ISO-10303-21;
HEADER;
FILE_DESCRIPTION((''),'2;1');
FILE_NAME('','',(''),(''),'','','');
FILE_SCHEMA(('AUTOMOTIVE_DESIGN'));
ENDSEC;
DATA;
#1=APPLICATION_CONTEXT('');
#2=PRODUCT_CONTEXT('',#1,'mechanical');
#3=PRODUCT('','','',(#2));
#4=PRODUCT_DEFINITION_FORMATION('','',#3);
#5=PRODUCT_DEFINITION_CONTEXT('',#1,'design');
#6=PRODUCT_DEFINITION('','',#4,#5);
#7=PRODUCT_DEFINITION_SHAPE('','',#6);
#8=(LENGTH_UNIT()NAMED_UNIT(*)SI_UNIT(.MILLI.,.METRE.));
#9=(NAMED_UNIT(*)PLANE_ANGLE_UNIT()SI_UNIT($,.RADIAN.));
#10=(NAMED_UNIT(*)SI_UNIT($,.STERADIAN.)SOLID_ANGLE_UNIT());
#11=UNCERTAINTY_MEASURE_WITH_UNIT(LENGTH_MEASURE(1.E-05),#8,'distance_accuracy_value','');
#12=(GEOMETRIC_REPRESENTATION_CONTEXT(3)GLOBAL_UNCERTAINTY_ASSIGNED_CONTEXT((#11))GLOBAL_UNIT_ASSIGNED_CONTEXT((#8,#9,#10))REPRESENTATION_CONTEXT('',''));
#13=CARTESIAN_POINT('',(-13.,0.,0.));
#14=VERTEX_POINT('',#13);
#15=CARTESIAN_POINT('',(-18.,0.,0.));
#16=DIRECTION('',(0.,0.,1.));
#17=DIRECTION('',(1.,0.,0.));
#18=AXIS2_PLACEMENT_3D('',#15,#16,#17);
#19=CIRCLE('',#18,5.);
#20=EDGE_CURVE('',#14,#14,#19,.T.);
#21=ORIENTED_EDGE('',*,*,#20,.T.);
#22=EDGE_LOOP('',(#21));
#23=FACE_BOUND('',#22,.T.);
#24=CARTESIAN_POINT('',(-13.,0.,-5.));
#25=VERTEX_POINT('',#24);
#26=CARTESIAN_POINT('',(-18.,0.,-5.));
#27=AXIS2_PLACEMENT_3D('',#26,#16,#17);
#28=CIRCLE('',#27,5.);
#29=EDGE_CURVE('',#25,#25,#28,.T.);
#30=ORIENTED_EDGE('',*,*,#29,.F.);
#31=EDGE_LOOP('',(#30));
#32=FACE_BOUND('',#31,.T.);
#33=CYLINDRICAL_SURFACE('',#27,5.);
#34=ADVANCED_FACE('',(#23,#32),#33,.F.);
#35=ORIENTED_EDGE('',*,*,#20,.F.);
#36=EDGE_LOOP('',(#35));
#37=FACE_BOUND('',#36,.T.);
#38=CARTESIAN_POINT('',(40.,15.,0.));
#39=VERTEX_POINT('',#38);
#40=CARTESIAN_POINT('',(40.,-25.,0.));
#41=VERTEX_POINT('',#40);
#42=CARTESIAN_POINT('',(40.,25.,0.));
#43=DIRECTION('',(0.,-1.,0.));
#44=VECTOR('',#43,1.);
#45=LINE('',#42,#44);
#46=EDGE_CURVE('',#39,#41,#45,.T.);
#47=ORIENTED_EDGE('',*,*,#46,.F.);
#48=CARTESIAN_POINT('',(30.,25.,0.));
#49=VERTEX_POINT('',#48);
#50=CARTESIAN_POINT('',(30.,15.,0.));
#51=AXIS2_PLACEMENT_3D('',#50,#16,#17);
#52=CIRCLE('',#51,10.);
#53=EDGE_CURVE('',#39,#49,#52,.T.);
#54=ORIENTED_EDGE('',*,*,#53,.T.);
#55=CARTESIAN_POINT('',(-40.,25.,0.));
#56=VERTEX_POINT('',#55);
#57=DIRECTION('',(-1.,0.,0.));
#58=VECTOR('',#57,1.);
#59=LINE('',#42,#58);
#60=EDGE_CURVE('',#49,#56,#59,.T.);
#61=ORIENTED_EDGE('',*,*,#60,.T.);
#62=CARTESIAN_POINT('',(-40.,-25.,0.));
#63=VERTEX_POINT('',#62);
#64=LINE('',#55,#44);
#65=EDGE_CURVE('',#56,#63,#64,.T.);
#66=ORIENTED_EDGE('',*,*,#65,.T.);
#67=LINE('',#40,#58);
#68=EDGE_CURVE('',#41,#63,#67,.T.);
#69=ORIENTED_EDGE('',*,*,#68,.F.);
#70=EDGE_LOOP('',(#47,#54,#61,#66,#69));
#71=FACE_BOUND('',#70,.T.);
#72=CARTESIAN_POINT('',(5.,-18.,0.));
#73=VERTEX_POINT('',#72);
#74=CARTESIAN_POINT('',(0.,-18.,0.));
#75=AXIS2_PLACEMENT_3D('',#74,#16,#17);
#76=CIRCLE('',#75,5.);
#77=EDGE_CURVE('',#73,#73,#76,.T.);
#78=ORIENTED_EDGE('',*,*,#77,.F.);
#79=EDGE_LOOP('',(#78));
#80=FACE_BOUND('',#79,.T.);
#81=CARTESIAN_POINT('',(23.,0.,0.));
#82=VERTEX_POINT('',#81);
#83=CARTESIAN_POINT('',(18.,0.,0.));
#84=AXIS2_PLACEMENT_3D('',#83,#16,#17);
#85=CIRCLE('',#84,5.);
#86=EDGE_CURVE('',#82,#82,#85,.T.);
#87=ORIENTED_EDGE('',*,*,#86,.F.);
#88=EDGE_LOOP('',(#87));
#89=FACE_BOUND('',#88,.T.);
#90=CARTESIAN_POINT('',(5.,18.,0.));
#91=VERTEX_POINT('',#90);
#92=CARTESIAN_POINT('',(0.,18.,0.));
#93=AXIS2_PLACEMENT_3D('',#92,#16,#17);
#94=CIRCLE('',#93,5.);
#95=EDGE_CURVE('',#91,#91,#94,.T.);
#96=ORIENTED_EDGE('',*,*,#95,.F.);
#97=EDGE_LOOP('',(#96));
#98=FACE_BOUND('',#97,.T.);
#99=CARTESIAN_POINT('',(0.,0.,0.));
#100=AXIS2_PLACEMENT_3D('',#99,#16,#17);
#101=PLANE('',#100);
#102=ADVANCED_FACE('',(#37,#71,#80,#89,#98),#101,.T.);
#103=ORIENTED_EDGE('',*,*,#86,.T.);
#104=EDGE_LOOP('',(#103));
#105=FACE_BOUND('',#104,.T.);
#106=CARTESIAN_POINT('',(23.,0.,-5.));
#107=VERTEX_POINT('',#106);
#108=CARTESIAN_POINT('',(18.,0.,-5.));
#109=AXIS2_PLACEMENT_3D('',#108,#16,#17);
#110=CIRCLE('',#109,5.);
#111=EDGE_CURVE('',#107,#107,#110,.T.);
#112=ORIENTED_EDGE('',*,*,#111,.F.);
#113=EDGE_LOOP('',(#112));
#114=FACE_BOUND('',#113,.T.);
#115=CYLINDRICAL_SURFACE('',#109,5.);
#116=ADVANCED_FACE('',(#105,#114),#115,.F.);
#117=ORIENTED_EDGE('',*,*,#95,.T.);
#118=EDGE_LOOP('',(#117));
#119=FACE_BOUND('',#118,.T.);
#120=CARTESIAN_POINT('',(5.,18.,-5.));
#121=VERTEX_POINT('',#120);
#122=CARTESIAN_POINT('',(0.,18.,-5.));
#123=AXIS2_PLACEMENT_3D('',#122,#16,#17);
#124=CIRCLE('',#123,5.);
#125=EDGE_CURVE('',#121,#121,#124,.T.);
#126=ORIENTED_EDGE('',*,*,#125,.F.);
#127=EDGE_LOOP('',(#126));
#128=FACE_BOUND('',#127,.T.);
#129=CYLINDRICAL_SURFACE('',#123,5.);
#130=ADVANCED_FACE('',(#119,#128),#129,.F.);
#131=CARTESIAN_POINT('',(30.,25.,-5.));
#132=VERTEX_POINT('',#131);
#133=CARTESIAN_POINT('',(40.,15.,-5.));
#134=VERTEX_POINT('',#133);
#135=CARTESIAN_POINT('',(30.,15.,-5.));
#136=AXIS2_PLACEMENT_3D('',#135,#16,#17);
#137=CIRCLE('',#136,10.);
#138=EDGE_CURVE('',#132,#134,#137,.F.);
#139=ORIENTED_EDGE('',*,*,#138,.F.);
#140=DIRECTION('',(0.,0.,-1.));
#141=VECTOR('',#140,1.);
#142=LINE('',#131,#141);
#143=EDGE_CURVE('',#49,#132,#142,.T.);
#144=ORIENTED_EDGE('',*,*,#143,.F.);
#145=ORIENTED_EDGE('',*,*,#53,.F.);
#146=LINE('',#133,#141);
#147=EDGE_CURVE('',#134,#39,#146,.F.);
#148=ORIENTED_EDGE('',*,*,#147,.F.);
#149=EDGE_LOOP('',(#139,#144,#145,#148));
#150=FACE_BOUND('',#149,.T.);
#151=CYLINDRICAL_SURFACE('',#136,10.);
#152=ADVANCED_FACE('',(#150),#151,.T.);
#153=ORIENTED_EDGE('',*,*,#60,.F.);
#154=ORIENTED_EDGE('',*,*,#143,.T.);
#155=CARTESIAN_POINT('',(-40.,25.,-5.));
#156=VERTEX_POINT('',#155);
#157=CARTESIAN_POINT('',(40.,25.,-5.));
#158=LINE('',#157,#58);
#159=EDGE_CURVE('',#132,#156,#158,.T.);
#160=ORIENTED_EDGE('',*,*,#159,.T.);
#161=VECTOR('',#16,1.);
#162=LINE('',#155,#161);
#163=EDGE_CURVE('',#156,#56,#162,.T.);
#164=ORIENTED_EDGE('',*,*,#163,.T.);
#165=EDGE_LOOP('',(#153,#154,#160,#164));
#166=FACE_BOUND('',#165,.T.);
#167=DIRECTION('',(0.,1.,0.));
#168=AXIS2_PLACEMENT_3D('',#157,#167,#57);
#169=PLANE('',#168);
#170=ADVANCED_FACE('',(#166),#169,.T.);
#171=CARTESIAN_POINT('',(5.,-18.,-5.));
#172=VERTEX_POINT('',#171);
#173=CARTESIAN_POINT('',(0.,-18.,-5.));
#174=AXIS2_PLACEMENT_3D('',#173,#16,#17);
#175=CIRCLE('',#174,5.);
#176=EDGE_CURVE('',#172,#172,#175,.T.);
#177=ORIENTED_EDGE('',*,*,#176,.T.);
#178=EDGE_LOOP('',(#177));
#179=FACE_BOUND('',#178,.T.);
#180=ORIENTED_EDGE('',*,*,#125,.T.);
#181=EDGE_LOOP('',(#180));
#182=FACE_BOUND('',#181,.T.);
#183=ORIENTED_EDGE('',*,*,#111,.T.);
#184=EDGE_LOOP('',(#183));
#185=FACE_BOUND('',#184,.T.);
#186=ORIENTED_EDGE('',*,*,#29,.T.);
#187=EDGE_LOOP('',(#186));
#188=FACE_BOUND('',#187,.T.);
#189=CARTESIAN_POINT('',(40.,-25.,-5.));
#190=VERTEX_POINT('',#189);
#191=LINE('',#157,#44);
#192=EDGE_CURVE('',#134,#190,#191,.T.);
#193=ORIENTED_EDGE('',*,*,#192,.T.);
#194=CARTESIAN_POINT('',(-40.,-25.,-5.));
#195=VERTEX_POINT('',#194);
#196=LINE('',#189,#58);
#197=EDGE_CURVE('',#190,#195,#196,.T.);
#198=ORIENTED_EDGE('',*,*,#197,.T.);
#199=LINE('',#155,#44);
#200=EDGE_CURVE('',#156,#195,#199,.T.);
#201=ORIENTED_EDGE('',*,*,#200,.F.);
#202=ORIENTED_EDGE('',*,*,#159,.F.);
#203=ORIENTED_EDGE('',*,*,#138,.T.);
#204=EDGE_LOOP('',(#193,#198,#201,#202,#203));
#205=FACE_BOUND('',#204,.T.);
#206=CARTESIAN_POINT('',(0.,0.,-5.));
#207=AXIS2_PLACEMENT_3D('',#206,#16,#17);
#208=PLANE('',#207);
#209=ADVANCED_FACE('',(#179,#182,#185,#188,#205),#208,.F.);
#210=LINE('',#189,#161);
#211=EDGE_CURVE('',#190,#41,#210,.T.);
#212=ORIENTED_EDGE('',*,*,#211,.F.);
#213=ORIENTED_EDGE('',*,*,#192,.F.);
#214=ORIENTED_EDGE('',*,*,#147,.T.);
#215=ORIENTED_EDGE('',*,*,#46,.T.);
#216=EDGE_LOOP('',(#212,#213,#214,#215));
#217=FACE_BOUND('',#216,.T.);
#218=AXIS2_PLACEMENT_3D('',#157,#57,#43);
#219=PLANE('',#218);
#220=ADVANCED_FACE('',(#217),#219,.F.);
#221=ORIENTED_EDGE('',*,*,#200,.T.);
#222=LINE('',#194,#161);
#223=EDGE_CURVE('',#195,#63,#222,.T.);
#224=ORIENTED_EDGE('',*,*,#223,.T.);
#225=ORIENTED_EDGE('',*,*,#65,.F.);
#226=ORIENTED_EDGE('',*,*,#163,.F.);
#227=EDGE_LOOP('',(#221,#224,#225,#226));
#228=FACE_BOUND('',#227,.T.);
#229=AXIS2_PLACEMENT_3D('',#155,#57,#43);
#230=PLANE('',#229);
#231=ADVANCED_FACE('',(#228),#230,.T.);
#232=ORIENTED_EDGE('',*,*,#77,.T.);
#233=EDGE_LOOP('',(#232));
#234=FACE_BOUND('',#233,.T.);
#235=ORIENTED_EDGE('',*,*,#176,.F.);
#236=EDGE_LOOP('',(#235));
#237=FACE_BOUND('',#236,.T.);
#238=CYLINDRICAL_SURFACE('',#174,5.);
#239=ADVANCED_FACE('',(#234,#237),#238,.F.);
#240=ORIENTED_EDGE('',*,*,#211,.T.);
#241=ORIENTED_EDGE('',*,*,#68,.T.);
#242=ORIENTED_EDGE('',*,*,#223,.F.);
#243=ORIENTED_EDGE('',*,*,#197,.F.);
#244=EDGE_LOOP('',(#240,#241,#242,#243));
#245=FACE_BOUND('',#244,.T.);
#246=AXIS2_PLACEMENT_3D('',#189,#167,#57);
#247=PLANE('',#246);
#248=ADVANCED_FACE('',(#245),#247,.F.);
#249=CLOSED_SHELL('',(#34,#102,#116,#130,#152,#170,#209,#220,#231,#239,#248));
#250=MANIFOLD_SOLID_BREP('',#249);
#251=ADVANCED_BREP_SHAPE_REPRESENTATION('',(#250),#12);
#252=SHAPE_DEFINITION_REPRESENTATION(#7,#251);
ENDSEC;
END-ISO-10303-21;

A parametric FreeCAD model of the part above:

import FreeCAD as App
import Part
import Sketcher
Q = App.Units.Quantity


def edges_at(feature, points):
    """Names of the edges that pass closest to the given points."""
    edges = feature.Shape.Edges
    near = lambda p: min(range(len(edges)), key=lambda i: edges[i].distToShape(Part.Vertex(*p))[0])
    return sorted({f"Edge{near(p) + 1}" for p in points})


def add_polygon(sketch, points):
    """Adds a closed chain of lines whose ends are joined by coincident constraints."""
    first, n = sketch.GeometryCount, len(points)
    for a, b in zip(points, points[1:] + points[:1]):
        sketch.addGeometry(Part.LineSegment(App.Vector(*a, 0), App.Vector(*b, 0)), False)
    for i in range(n):
        sketch.addConstraint(Sketcher.Constraint("Coincident", first + i, 2, first + (i + 1) % n, 1))

doc = App.newDocument("Part")
body = doc.addObject("PartDesign::Body", "Body")

# Sketch on XY plane
sketch1 = body.newObject("Sketcher::SketchObject", "Sketch")
sketch1.AttachmentSupport = (doc.getObject("XY_Plane"), [""])
sketch1.MapMode = "FlatFace"
add_polygon(sketch1, [(-40, 25), (-40, -25), (40, -25), (40, 25)])  # lines 0-3
sketch1.addConstraint([
    Sketcher.Constraint("Vertical", 0),
    Sketcher.Constraint("Horizontal", 1),
    Sketcher.Constraint("Vertical", 2),
    Sketcher.Constraint("Horizontal", 3),
    Sketcher.Constraint("Symmetric", 0, 2, 2, 2, -1, 1),
    Sketcher.Constraint("DistanceX", 1, 1, 1, 2, Q("80 mm")),
    Sketcher.Constraint("DistanceY", 0, 2, 0, 1, Q("50 mm")),
])
pad1 = body.newObject("PartDesign::Pad", "Pad")
pad1.Profile = sketch1
pad1.Length = 5
pad1.Reversed = True

# Sketch on XY plane
sketch2 = body.newObject("Sketcher::SketchObject", "Sketch001")
sketch2.AttachmentSupport = (doc.getObject("XY_Plane"), [""])
sketch2.MapMode = "FlatFace"
sketch2.addGeometry([
    Part.Circle(App.Vector(-18, 0, 0), App.Vector(0, 0, 1), 5),
    Part.Circle(App.Vector(0, 18, 0), App.Vector(0, 0, 1), 5),
    Part.Circle(App.Vector(18, 0, 0), App.Vector(0, 0, 1), 5),
    Part.Circle(App.Vector(0, -18, 0), App.Vector(0, 0, 1), 5),
], False)
sketch2.addConstraint([
    Sketcher.Constraint("Equal", 0, 1),
    Sketcher.Constraint("Equal", 1, 2),
    Sketcher.Constraint("Equal", 2, 3),
    Sketcher.Constraint("Symmetric", 0, 3, 2, 3, -1, 1),
    Sketcher.Constraint("Symmetric", 1, 3, 3, 3, -1, 1),
    Sketcher.Constraint("PointOnObject", 0, 3, -1),
    Sketcher.Constraint("PointOnObject", 1, 3, -2),
    Sketcher.Constraint("Diameter", 0, Q("10 mm")),
    Sketcher.Constraint("DistanceX", 0, 3, -1, 1, Q("18 mm")),
    Sketcher.Constraint("DistanceY", -1, 1, 1, 3, Q("18 mm")),
])
pocket1 = body.newObject("PartDesign::Pocket", "Pocket")
pocket1.Profile = sketch2
pocket1.Length = 5
doc.recompute()

fillet = body.newObject("PartDesign::Fillet", "Fillet")
fillet.Base = (pocket1, edges_at(pocket1, [(40, 25, -2.5)]))
fillet.Radius = 10

doc.recompute()
